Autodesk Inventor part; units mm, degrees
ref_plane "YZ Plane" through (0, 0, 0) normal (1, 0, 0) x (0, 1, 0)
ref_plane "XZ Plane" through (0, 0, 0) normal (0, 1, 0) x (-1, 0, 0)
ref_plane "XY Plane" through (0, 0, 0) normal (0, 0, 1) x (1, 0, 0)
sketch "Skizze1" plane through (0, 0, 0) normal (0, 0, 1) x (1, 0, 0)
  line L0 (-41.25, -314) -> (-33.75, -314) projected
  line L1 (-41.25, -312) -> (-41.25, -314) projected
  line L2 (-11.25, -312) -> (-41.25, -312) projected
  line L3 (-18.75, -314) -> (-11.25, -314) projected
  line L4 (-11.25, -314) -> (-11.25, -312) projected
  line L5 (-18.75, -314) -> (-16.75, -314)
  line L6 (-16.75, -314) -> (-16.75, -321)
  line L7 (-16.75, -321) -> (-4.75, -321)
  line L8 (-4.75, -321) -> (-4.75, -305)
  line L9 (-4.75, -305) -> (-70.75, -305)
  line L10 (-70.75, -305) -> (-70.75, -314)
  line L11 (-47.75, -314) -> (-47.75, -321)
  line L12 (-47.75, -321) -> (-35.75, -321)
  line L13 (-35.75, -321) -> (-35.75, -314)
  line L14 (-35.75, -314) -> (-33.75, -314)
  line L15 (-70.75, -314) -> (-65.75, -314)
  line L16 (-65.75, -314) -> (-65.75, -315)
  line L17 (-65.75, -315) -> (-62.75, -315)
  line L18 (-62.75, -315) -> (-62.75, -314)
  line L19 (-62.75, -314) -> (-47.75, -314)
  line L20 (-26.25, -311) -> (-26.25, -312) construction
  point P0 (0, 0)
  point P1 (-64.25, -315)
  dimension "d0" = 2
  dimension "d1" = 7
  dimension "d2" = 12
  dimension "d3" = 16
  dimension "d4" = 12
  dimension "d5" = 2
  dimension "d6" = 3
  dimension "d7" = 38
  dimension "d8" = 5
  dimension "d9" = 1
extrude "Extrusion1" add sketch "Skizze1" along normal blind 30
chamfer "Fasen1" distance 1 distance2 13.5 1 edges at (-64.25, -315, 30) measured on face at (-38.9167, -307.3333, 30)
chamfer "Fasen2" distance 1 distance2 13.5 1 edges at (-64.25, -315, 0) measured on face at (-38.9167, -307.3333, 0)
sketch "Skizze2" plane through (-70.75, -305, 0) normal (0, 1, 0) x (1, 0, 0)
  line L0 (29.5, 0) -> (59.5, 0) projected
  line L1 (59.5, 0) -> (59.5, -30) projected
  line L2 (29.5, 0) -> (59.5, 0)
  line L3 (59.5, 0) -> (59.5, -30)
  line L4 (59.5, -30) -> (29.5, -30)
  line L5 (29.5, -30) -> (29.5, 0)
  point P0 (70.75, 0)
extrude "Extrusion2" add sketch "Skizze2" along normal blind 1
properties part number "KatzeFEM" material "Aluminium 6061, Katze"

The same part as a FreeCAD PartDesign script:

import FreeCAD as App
import Part
import Sketcher

V = App.Vector
Q = App.Units.Quantity


def edges_at(feature, points):
    """Names of the edges that pass closest to the given points."""
    edges = feature.Shape.Edges
    near = lambda p: min(range(len(edges)), key=lambda i: edges[i].distToShape(Part.Vertex(*p))[0])
    return sorted({f"Edge{near(p) + 1}" for p in points})


def add_polygon(sketch, points):
    """Adds a closed chain of lines whose ends are joined by coincident constraints."""
    first, n = sketch.GeometryCount, len(points)
    for a, b in zip(points, points[1:] + points[:1]):
        sketch.addGeometry(Part.LineSegment(App.Vector(*a, 0), App.Vector(*b, 0)), False)
    for i in range(n):
        sketch.addConstraint(Sketcher.Constraint("Coincident", first + i, 2, first + (i + 1) % n, 1))

doc = App.newDocument("Part")
params = doc.addObject("Spreadsheet::Sheet", "Params")
for row, (alias, value) in enumerate([
    ("sketch1_width", "12 mm"),
    ("sketch1_width2", "5 mm"),
    ("sketch1_width3", "3 mm"),
    ("sketch1_height", "2 mm"),
    ("sketch1_height2", "7 mm"),
    ("pad1_length", "30 mm"),
    ("chamfer_size", "1 mm"),
    ("chamfer_size2", "13.5 mm"),
    ("chamfer2_size", "1 mm"),
    ("chamfer2_size2", "13.5 mm"),
    ("sketch2_width", "30 mm"),
    ("pad2_length", "1 mm"),
], start=1):
    params.set(f"A{row}", alias)
    params.set(f"B{row}", "=" + value)
    params.setAlias(f"B{row}", alias)

body = doc.addObject("PartDesign::Body", "Body")

sketch1 = body.newObject("Sketcher::SketchObject", "Sketch")
sketch1.AttachmentSupport = (doc.getObject("XY_Plane"), [""])
sketch1.MapMode = "FlatFace"
add_polygon(sketch1, [(-35.8, -314), (-41.2, -314), (-41.2, -312), (-11.2, -312), (-11.2, -314), (-16.8, -314), (-16.8, -321), (-4.8, -321), (-4.8, -305), (-70.8, -305), (-70.8, -314), (-65.8, -314), (-65.8, -315), (-62.8, -315), (-62.8, -314), (-47.8, -314), (-47.8, -321), (-35.8, -321)])
sketch1.addConstraint([
    Sketcher.Constraint("Horizontal", 0),
    Sketcher.Constraint("Vertical", 1),
    Sketcher.Constraint("Horizontal", 2),
    Sketcher.Constraint("Vertical", 3),
    Sketcher.Constraint("Horizontal", 4),
    Sketcher.Constraint("Vertical", 5),
    Sketcher.Constraint("Horizontal", 6),
    Sketcher.Constraint("Vertical", 7),
    Sketcher.Constraint("Horizontal", 8),
    Sketcher.Constraint("Vertical", 9),
    Sketcher.Constraint("Horizontal", 10),
    Sketcher.Constraint("Vertical", 11),
    Sketcher.Constraint("Horizontal", 12),
    Sketcher.Constraint("Vertical", 13),
    Sketcher.Constraint("Horizontal", 14),
    Sketcher.Constraint("Vertical", 15),
    Sketcher.Constraint("Horizontal", 16),
    Sketcher.Constraint("Vertical", 17),
    Sketcher.Constraint("Horizontal", 0, 2, 3, 2),
    Sketcher.Constraint("Horizontal", 4, 2, 9, 2),
    Sketcher.Constraint("Horizontal", 10, 2, 13, 2),
    Sketcher.Constraint("Horizontal", 6, 2, 15, 2),
    Sketcher.Constraint("Equal", 0, 4),
    Sketcher.Constraint("Equal", 6, 16),
    Sketcher.Constraint("DistanceX", 6, 1, 6, 2, Q("12 mm")),
    Sketcher.Constraint("DistanceX", 10, 1, 10, 2, Q("5 mm")),
    Sketcher.Constraint("DistanceX", 12, 1, 12, 2, Q("3 mm")),
    Sketcher.Constraint("DistanceY", 1, 1, 1, 2, Q("2 mm")),
    Sketcher.Constraint("DistanceY", 5, 2, 5, 1, Q("7 mm")),
    Sketcher.Constraint("DistanceY", 7, 1, 7, 2, Q("16 mm")),
    Sketcher.Constraint("DistanceY", 11, 2, 11, 1, Q("1 mm")),
    Sketcher.Constraint("DistanceX", 2, 1, 2, 2, Q("30 mm")),
    Sketcher.Constraint("DistanceX", 8, 2, 8, 1, Q("66 mm")),
    Sketcher.Constraint("DistanceX", 14, 1, 14, 2, Q("15 mm")),
    Sketcher.Constraint("DistanceY", 0, 2, -1, 1, Q("314 mm")),
    Sketcher.Constraint("DistanceX", 0, 2, -1, 1, Q("41.25 mm")),
])
sketch1.setExpression("Constraints[42]", "Params.sketch1_width")
sketch1.setExpression("Constraints[43]", "Params.sketch1_width2")
sketch1.setExpression("Constraints[44]", "Params.sketch1_width3")
sketch1.setExpression("Constraints[45]", "Params.sketch1_height")
sketch1.setExpression("Constraints[46]", "Params.sketch1_height2")
pad1 = body.newObject("PartDesign::Pad", "Pad")
pad1.Profile = sketch1
pad1.setExpression("Length", "Params.pad1_length")
doc.recompute()

chamfer = body.newObject("PartDesign::Chamfer", "Chamfer")
chamfer.Base = (pad1, edges_at(pad1, [(-64.25, -315, 30)]))
chamfer.ChamferType = "Two distances"
chamfer.setExpression("Size", "Params.chamfer_size")
chamfer.setExpression("Size2", "Params.chamfer_size2")
chamfer.FlipDirection = True
doc.recompute()

chamfer2 = body.newObject("PartDesign::Chamfer", "Chamfer001")
chamfer2.Base = (chamfer, edges_at(chamfer, [(-64.25, -315, 0)]))
chamfer2.ChamferType = "Two distances"
chamfer2.setExpression("Size", "Params.chamfer2_size")
chamfer2.setExpression("Size2", "Params.chamfer2_size2")
chamfer2.FlipDirection = True

sketch2 = body.newObject("Sketcher::SketchObject", "Sketch001")
sketch2.AttachmentSupport = (doc.getObject("XZ_Plane"), [""])
sketch2.MapMode = "FlatFace"
sketch2.AttachmentOffset = App.Placement(V(0, 0, 305), App.Rotation())
add_polygon(sketch2, [(-11, 0), (-41, 0), (-41, 30), (-11, 30)])
sketch2.addConstraint([
    Sketcher.Constraint("Horizontal", 0),
    Sketcher.Constraint("Vertical", 1),
    Sketcher.Constraint("Horizontal", 2),
    Sketcher.Constraint("Vertical", 3),
    Sketcher.Constraint("PointOnObject", 0, 2, -1),
    Sketcher.Constraint("Equal", 2, 1),
    Sketcher.Constraint("DistanceX", 0, 2, 0, 1, Q("30 mm")),
    Sketcher.Constraint("DistanceX", 0, 2, -1, 1, Q("41.25 mm")),
])
sketch2.setExpression("Constraints[10]", "Params.sketch2_width")
pad2 = body.newObject("PartDesign::Pad", "Pad001")
pad2.Profile = sketch2
pad2.setExpression("Length", "Params.pad2_length")
pad2.Reversed = True

doc.recompute()
